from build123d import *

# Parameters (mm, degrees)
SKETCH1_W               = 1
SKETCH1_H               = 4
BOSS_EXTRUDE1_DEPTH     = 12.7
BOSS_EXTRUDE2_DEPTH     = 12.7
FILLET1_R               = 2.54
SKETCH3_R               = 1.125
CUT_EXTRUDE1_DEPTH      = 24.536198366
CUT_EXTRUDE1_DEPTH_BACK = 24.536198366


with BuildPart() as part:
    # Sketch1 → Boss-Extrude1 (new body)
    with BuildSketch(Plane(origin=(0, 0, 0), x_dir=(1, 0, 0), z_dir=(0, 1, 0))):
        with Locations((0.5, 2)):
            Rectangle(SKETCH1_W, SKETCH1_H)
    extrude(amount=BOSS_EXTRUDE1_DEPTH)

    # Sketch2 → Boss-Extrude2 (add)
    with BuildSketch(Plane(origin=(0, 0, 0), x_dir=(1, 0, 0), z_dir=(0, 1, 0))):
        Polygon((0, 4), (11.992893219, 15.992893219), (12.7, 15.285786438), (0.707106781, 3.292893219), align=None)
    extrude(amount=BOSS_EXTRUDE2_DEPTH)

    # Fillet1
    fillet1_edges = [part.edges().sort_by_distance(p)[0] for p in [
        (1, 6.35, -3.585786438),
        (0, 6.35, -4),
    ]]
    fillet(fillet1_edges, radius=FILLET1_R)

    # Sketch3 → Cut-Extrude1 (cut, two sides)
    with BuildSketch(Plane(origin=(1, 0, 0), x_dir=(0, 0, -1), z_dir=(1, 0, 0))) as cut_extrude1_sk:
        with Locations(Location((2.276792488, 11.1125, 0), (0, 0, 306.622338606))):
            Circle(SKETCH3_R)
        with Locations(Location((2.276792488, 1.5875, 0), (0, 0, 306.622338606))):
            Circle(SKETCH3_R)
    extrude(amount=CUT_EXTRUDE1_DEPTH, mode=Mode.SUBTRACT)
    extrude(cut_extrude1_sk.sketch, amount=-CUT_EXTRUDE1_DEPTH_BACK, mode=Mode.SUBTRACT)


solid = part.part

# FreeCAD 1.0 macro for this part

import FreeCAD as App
import Part
import Sketcher

V = App.Vector
Q = App.Units.Quantity


def edges_at(feature, points):
    """Names of the edges that pass closest to the given points."""
    edges = feature.Shape.Edges
    near = lambda p: min(range(len(edges)), key=lambda i: edges[i].distToShape(Part.Vertex(*p))[0])
    return sorted({f"Edge{near(p) + 1}" for p in points})


def add_polygon(sketch, points):
    """Adds a closed chain of lines whose ends are joined by coincident constraints."""
    first, n = sketch.GeometryCount, len(points)
    for a, b in zip(points, points[1:] + points[:1]):
        sketch.addGeometry(Part.LineSegment(App.Vector(*a, 0), App.Vector(*b, 0)), False)
    for i in range(n):
        sketch.addConstraint(Sketcher.Constraint("Coincident", first + i, 2, first + (i + 1) % n, 1))

doc = App.newDocument("Part")
body = doc.addObject("PartDesign::Body", "Body")

sketch1 = body.newObject("Sketcher::SketchObject", "Sketch")
sketch1.AttachmentSupport = (doc.getObject("XZ_Plane"), [""])
sketch1.MapMode = "FlatFace"
add_polygon(sketch1, [(0, -4), (0, 0), (1, 0), (1, -4)])
sketch1.addConstraint([
    Sketcher.Constraint("Vertical", 0),
    Sketcher.Constraint("Horizontal", 1),
    Sketcher.Constraint("Vertical", 2),
    Sketcher.Constraint("Horizontal", 3),
    Sketcher.Constraint("Coincident", 0, 2, -1, 1),
    Sketcher.Constraint("DistanceX", 1, 1, 1, 2, 1.0),
    Sketcher.Constraint("DistanceY", 0, 1, 0, 2, 4.0),
])
pad1 = body.newObject("PartDesign::Pad", "Pad")
pad1.Profile = sketch1
pad1.Length = 12.7
pad1.Reversed = True

sketch2 = body.newObject("Sketcher::SketchObject", "Sketch001")
sketch2.AttachmentSupport = (doc.getObject("XZ_Plane"), [""])
sketch2.MapMode = "FlatFace"
add_polygon(sketch2, [(12, -16), (0, -4), (0.7, -3.3), (12.7, -15.3)])
sketch2.addConstraint([
    Sketcher.Constraint("PointOnObject", 0, 2, -2),
    Sketcher.Constraint("Perpendicular", 0, 1),
    Sketcher.Constraint("Perpendicular", 1, 2),
    Sketcher.Constraint("Perpendicular", 2, 3),
    Sketcher.Constraint("Angle", 0, Q("135 deg")),
    Sketcher.Constraint("Distance", 1, 1.0),
    Sketcher.Constraint("DistanceY", 0, 2, -1, 1, 4.0),
    Sketcher.Constraint("DistanceX", -1, 1, 2, 2, 12.7),
])
pad2 = body.newObject("PartDesign::Pad", "Pad001")
pad2.Profile = sketch2
pad2.Length = 12.7
pad2.Reversed = True
doc.recompute()

fillet = body.newObject("PartDesign::Fillet", "Fillet")
fillet.Base = (pad2, edges_at(pad2, [(1, 6.35, -3.586), (0, 6.35, -4)]))
fillet.Radius = 2.54

sketch3 = body.newObject("Sketcher::SketchObject", "Sketch002")
sketch3.AttachmentSupport = (doc.getObject("YZ_Plane"), [""])
sketch3.MapMode = "FlatFace"
sketch3.AttachmentOffset = App.Placement(V(0, 0, 1), App.Rotation())
sketch3.addGeometry([
    Part.Circle(V(11.1, -2.3, 0), V(0, 0, 1), 1.1),
    Part.Circle(V(1.6, -2.3, 0), V(0, 0, 1), 1.1),
], False)
sketch3.addConstraint([
    Sketcher.Constraint("Equal", 0, 1),
    Sketcher.Constraint("Horizontal", 0, 3, 1, 3),
    Sketcher.Constraint("Diameter", 0, 2.25),
    Sketcher.Constraint("DistanceX", 1, 3, 0, 3, 9.525),
    Sketcher.Constraint("DistanceX", -1, 1, 0, 3, 11.1125),
    Sketcher.Constraint("DistanceY", 0, 3, -1, 1, 2.276792),
])
pocket1 = body.newObject("PartDesign::Pocket", "Pocket")
pocket1.Profile = sketch3
pocket1.Type = "ThroughAll"
pocket1.Midplane = True

doc.recompute()
